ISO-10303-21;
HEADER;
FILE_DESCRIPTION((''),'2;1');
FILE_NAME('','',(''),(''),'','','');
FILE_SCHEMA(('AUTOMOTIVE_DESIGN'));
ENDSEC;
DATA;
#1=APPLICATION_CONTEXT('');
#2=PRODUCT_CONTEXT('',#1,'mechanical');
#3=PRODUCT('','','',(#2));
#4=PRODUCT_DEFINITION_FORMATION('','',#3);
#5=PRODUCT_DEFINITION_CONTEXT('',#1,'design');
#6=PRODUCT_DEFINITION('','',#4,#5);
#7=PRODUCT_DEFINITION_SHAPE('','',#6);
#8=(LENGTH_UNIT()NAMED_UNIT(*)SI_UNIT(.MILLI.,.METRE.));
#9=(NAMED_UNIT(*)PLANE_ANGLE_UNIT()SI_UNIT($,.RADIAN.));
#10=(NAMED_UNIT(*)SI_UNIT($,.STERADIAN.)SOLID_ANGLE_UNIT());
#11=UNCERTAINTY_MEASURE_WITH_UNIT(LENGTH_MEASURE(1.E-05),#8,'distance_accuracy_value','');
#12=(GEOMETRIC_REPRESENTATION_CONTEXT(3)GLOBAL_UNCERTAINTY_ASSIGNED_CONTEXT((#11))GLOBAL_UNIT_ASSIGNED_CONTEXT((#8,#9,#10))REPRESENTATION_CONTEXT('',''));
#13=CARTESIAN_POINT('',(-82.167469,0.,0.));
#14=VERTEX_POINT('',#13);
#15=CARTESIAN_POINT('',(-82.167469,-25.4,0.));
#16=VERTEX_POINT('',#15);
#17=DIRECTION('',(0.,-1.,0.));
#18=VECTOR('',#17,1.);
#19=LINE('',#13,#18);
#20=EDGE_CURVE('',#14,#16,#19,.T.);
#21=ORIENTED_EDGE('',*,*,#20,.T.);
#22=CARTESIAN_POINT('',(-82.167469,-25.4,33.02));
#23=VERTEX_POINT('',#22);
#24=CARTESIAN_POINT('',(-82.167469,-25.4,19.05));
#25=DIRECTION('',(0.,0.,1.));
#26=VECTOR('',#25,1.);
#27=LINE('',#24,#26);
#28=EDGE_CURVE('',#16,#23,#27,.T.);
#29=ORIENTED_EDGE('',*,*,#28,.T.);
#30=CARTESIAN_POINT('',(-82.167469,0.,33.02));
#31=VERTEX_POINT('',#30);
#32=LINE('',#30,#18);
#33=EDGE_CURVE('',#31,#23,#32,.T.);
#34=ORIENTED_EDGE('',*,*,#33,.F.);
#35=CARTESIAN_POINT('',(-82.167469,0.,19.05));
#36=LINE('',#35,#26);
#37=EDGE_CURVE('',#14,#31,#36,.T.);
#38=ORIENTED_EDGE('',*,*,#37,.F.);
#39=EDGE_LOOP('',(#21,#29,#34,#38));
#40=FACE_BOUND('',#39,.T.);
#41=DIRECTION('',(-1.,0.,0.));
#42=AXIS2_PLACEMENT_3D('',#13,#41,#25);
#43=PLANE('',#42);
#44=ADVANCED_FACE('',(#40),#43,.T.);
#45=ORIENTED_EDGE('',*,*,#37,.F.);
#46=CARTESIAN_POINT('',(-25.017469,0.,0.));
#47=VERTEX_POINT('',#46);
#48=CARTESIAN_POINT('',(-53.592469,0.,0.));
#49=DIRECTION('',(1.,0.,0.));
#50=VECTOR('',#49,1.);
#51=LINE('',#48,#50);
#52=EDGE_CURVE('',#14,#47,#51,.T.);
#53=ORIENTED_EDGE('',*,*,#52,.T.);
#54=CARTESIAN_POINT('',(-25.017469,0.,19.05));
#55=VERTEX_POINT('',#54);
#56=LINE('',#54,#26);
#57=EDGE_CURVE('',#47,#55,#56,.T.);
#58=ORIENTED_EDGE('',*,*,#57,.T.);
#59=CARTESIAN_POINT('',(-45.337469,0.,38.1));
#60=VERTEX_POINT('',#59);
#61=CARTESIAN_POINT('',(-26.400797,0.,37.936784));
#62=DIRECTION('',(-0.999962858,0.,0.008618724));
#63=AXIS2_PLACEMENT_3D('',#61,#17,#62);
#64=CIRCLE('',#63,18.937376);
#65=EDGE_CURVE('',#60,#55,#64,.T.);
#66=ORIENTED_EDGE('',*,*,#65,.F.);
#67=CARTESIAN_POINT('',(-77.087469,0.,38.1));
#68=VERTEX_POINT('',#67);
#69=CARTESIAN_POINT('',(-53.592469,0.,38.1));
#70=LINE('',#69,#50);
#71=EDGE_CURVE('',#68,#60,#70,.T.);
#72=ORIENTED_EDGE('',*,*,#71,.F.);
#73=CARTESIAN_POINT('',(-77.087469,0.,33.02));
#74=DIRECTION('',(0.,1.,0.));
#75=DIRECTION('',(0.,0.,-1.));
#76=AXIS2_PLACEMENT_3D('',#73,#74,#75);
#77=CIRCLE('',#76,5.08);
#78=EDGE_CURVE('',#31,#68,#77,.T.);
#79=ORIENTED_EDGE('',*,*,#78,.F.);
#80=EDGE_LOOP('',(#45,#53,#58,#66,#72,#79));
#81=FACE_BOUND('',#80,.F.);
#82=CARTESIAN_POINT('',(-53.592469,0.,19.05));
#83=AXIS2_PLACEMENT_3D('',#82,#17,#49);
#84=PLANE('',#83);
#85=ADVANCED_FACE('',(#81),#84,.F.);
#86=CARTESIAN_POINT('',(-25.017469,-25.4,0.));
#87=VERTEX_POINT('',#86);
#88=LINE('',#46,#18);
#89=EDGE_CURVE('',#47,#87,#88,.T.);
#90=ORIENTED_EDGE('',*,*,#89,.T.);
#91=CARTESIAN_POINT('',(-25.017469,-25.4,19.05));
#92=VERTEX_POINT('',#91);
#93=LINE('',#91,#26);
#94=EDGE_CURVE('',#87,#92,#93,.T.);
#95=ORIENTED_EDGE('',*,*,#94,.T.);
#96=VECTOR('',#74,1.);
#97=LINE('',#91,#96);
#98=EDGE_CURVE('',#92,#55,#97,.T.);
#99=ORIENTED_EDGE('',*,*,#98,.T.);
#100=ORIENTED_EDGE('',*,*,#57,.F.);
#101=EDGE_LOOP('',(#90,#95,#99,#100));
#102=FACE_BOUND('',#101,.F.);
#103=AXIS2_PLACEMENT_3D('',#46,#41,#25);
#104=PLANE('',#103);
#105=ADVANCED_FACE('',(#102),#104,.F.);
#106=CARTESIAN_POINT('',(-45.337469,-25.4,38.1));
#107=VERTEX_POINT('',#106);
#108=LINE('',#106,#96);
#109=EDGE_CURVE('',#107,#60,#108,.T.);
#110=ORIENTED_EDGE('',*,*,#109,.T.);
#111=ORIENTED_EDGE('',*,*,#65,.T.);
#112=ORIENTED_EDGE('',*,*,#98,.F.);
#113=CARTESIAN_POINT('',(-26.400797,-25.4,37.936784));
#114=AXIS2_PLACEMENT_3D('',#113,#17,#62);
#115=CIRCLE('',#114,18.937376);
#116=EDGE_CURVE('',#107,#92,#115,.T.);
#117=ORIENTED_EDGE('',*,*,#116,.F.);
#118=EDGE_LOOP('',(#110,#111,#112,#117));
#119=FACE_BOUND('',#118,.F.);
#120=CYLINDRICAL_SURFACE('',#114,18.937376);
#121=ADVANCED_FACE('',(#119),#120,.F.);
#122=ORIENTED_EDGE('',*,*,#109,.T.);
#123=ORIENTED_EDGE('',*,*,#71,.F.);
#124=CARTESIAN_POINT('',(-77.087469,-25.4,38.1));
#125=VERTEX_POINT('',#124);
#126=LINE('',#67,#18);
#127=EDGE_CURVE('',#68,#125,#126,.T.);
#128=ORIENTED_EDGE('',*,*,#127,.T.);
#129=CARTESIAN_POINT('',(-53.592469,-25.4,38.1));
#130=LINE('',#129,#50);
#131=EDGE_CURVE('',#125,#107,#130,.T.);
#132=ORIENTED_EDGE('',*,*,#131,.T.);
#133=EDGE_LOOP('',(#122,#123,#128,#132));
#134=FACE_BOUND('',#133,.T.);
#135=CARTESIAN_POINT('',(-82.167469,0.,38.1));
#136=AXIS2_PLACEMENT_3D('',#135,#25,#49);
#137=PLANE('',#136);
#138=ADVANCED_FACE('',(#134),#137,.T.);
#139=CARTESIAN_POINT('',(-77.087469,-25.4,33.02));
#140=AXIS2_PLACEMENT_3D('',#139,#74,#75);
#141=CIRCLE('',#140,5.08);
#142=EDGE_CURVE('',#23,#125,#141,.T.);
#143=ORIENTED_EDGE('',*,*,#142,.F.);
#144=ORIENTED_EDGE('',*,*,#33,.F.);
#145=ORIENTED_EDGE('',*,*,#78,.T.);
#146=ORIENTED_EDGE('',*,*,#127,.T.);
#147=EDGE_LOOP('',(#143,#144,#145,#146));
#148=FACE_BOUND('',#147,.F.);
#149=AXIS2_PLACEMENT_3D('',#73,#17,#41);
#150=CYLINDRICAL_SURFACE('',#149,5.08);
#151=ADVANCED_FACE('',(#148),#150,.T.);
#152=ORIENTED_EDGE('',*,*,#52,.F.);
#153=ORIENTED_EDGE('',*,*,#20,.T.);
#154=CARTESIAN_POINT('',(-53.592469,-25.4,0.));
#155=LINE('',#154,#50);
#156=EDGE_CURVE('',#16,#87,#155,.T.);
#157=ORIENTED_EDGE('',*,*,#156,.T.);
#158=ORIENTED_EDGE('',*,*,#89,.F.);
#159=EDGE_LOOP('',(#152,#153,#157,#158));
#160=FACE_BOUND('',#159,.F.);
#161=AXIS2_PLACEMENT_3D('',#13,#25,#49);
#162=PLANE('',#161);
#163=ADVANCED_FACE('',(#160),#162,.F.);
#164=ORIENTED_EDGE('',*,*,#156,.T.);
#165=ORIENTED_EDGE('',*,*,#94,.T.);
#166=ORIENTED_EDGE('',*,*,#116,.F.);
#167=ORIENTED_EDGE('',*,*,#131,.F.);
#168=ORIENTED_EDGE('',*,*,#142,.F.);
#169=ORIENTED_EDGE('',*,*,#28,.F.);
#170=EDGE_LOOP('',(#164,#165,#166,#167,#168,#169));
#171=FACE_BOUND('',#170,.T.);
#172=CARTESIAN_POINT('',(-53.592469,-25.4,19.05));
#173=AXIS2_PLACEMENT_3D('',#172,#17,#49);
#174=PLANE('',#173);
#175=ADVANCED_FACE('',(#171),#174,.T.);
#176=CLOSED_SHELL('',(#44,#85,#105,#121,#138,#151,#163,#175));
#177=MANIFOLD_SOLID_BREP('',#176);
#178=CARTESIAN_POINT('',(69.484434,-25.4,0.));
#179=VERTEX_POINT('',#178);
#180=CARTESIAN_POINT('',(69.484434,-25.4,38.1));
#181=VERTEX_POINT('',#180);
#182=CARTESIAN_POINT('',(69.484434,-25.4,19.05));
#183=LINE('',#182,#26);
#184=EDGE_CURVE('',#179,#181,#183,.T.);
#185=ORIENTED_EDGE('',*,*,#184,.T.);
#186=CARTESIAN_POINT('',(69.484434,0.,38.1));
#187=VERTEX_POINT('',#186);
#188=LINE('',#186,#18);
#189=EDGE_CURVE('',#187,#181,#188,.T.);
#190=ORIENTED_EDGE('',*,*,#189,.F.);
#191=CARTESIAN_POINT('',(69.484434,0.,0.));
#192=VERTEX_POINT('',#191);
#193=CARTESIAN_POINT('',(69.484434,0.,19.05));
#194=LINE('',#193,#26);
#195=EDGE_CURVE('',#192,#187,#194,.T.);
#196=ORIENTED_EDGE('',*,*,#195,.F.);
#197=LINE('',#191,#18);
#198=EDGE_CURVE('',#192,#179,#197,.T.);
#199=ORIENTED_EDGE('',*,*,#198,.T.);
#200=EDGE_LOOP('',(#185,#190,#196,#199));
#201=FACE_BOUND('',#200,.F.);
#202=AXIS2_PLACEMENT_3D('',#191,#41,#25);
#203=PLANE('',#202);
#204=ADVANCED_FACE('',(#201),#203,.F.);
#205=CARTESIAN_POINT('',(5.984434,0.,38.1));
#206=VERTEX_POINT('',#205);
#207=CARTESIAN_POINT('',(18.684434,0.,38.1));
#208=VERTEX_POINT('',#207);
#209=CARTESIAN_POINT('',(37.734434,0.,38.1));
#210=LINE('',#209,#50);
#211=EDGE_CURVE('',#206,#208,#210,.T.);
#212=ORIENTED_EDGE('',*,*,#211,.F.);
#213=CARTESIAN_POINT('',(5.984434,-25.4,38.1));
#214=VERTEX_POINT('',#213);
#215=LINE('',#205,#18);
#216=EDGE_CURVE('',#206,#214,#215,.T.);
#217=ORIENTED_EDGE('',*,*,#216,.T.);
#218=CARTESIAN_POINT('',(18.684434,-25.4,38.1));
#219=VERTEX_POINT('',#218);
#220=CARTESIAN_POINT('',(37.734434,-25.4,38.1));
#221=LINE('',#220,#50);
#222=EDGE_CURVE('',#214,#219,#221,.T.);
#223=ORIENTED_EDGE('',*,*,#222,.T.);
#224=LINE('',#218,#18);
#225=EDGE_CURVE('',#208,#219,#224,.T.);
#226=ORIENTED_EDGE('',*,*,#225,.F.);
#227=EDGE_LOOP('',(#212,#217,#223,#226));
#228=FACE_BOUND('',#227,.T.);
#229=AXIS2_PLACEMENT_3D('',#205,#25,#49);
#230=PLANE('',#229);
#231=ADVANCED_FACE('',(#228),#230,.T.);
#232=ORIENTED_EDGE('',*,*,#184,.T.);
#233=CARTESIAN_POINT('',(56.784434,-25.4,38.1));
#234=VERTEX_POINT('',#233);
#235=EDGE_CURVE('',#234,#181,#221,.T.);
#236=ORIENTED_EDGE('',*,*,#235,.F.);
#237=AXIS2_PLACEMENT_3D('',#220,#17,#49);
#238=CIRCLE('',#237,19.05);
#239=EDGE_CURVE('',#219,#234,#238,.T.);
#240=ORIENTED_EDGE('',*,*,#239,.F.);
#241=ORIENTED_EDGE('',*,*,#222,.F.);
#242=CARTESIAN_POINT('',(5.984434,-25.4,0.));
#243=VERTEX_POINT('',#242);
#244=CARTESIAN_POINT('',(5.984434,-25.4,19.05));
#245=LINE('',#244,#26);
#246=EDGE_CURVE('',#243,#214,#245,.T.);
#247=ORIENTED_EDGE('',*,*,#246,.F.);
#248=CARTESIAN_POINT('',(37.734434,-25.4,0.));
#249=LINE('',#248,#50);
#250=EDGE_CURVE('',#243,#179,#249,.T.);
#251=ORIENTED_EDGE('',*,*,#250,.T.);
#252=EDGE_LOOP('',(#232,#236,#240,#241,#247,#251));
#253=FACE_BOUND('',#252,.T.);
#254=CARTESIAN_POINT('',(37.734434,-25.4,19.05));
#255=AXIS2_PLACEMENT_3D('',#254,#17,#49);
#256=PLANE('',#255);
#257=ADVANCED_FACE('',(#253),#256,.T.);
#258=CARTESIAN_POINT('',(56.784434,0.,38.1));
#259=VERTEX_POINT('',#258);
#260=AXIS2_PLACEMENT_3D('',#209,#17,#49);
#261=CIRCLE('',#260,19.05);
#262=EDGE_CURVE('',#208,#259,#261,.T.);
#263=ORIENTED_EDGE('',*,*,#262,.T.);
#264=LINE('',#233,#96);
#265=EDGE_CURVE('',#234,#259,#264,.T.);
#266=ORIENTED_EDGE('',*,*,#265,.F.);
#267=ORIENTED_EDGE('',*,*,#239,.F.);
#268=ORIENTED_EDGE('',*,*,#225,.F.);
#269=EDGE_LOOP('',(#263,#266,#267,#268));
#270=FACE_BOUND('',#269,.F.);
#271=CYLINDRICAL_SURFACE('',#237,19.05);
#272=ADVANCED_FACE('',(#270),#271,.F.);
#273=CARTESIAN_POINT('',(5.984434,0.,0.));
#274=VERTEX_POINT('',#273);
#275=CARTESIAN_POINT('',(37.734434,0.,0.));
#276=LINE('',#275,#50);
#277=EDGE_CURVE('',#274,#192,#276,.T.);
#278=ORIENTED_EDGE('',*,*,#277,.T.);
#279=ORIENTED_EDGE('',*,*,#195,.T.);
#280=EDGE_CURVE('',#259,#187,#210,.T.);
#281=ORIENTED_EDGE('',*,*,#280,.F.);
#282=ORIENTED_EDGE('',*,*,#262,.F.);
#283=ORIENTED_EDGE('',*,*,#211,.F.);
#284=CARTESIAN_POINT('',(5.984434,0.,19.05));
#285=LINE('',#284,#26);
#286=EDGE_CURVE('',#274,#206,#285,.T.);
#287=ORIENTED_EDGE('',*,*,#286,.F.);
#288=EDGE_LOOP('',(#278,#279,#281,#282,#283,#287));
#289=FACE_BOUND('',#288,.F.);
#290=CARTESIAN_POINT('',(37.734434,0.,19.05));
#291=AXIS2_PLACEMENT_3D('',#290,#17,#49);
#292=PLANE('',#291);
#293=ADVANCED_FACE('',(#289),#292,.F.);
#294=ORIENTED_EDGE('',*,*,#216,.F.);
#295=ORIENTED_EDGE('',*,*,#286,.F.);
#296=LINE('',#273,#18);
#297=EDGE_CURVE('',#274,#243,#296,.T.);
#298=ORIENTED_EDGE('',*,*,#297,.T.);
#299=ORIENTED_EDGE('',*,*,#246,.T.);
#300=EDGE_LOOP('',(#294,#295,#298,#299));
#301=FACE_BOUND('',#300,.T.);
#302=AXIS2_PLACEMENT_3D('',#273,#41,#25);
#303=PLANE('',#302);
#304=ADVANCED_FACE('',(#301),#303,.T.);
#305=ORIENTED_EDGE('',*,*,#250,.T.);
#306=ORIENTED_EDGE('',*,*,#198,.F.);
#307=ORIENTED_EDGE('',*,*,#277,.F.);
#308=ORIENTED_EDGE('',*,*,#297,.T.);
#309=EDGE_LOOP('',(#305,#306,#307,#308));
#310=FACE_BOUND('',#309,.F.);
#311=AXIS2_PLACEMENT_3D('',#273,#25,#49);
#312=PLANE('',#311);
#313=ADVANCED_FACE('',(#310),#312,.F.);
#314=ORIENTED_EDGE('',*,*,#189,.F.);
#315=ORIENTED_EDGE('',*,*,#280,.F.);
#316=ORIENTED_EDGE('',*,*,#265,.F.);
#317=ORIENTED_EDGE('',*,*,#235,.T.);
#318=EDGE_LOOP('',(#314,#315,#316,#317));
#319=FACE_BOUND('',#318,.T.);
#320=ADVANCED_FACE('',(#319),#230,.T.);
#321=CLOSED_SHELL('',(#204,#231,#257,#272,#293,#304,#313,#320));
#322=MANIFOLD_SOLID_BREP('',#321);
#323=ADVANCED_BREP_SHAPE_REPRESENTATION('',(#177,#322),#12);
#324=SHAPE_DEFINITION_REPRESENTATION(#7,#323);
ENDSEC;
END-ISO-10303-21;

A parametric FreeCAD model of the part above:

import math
import FreeCAD as App
import Part
import Sketcher

V = App.Vector
Q = App.Units.Quantity


def edges_at(feature, points):
    """Names of the edges that pass closest to the given points."""
    edges = feature.Shape.Edges
    near = lambda p: min(range(len(edges)), key=lambda i: edges[i].distToShape(Part.Vertex(*p))[0])
    return sorted({f"Edge{near(p) + 1}" for p in points})

doc = App.newDocument("Part")
body = doc.addObject("PartDesign::Body", "Body")

# Sketch on XZ plane
sketch1 = doc.addObject("Sketcher::SketchObject", "Sketch")
body.addObject(sketch1)
sketch1.AttachmentSupport = (doc.XZ_Plane, [""])
sketch1.MapMode = "FlatFace"
sketch1.addGeometry([
    Part.LineSegment(V(-82, 38, 0), V(-82, 0, 0)),
    Part.LineSegment(V(-82, 0, 0), V(-25, 0, 0)),
    Part.LineSegment(V(-25, 0, 0), V(-25, 38, 0)),
    Part.LineSegment(V(-25, 38, 0), V(-82, 38, 0)),
], False)
sketch1.addConstraint([
    Sketcher.Constraint("Coincident", 0, 2, 1, 1),
    Sketcher.Constraint("Coincident", 1, 2, 2, 1),
    Sketcher.Constraint("Coincident", 2, 2, 3, 1),
    Sketcher.Constraint("Coincident", 3, 2, 0, 1),
    Sketcher.Constraint("Vertical", 0),
    Sketcher.Constraint("Horizontal", 1),
    Sketcher.Constraint("Vertical", 2),
    Sketcher.Constraint("Horizontal", 3),
    Sketcher.Constraint("PointOnObject", 0, 2, -1),
    Sketcher.Constraint("DistanceY", 0, 2, 0, 1, Q("1.5 in")),
    Sketcher.Constraint("DistanceX", 1, 1, 1, 2, Q("2.25 in")),
    Sketcher.Constraint("DistanceX", 0, 2, -1, 1, 82.167469),
])
pad1 = doc.addObject("PartDesign::Pad", "Pad")
body.addObject(pad1)
pad1.Profile = sketch1
pad1.Length = Q("1 in")
doc.recompute()

fillet = doc.addObject("PartDesign::Fillet", "Fillet")
body.addObject(fillet)
fillet.Base = (pad1, edges_at(pad1, [(-82.167, -12.7, 38.1)]))
fillet.Radius = Q("0.2 in")

# Sketch on XZ plane
sketch2 = doc.addObject("Sketcher::SketchObject", "Sketch001")
body.addObject(sketch2)
sketch2.AttachmentSupport = (doc.XZ_Plane, [""])
sketch2.MapMode = "FlatFace"
sketch2.AttachmentOffset = App.Placement(V(0, 0, 1 * 25.4), App.Rotation())
sketch2.addGeometry([
    Part.LineSegment(V(-25, 38, 0), V(-45, 38, 0)),
    Part.ArcOfCircle(Part.Circle(V(-26, 38, 0), V(0, 0, 1), 19), math.radians(180), math.radians(274)),
    Part.LineSegment(V(-25, 19, 0), V(-25, 38, 0)),
], False)
sketch2.addConstraint([
    Sketcher.Constraint("Coincident", 0, 2, 1, 1),
    Sketcher.Constraint("Coincident", 1, 2, 2, 1),
    Sketcher.Constraint("Coincident", 2, 2, 0, 1),
    Sketcher.Constraint("Horizontal", 0),
    Sketcher.Constraint("Vertical", 2),
    Sketcher.Constraint("DistanceX", 0, 2, 0, 1, Q("0.8 in")),
    Sketcher.Constraint("DistanceY", 2, 1, 2, 2, Q("0.75 in")),
    Sketcher.Constraint("DistanceY", -1, 1, 0, 2, Q("1.5 in")),
    Sketcher.Constraint("Radius", 1, 18.937376),
    Sketcher.Constraint("DistanceX", 0, 2, -1, 1, 45.337469),
])
pocket1 = doc.addObject("PartDesign::Pocket", "Pocket")
body.addObject(pocket1)
pocket1.Profile = sketch2
pocket1.Length = Q("1 in")
body2 = doc.addObject("PartDesign::Body", "Body001")

# Sketch on XZ plane
sketch3 = doc.addObject("Sketcher::SketchObject", "Sketch002")
body2.addObject(sketch3)
sketch3.AttachmentSupport = (doc.getObject("XZ_Plane001"), [""])
sketch3.MapMode = "FlatFace"
sketch3.addGeometry([
    Part.LineSegment(V(6, 38, 0), V(6, 0, 0)),
    Part.LineSegment(V(6, 0, 0), V(69, 0, 0)),
    Part.LineSegment(V(69, 0, 0), V(69, 38, 0)),
    Part.LineSegment(V(69, 38, 0), V(6, 38, 0)),
], False)
sketch3.addConstraint([
    Sketcher.Constraint("Coincident", 0, 2, 1, 1),
    Sketcher.Constraint("Coincident", 1, 2, 2, 1),
    Sketcher.Constraint("Coincident", 2, 2, 3, 1),
    Sketcher.Constraint("Coincident", 3, 2, 0, 1),
    Sketcher.Constraint("Vertical", 0),
    Sketcher.Constraint("Horizontal", 1),
    Sketcher.Constraint("Vertical", 2),
    Sketcher.Constraint("Horizontal", 3),
    Sketcher.Constraint("PointOnObject", 0, 2, -1),
    Sketcher.Constraint("DistanceX", 1, 1, 1, 2, Q("2.5 in")),
    Sketcher.Constraint("DistanceY", 0, 2, 0, 1, Q("1.5 in")),
    Sketcher.Constraint("DistanceX", -1, 1, 0, 2, 5.984434),
])
pad2 = doc.addObject("PartDesign::Pad", "Pad001")
body2.addObject(pad2)
pad2.Profile = sketch3
pad2.Length = Q("1 in")

# Sketch on XZ plane
sketch4 = doc.addObject("Sketcher::SketchObject", "Sketch003")
body2.addObject(sketch4)
sketch4.AttachmentSupport = (doc.getObject("XZ_Plane001"), [""])
sketch4.MapMode = "FlatFace"
sketch4.AttachmentOffset = App.Placement(V(0, 0, 1 * 25.4), App.Rotation())
sketch4.addGeometry(Part.Circle(V(38, 38, 0), V(0, 0, 1), 19), False)
sketch4.addConstraint([
    Sketcher.Constraint("Diameter", 0, Q("1.5 in")),
    Sketcher.Constraint("DistanceY", -1, 1, 0, 3, Q("1.5 in")),
    Sketcher.Constraint("DistanceX", -1, 1, 0, 3, 37.734434),
])
pocket2 = doc.addObject("PartDesign::Pocket", "Pocket001")
body2.addObject(pocket2)
pocket2.Profile = sketch4
pocket2.Length = Q("1 in")

doc.recompute()
